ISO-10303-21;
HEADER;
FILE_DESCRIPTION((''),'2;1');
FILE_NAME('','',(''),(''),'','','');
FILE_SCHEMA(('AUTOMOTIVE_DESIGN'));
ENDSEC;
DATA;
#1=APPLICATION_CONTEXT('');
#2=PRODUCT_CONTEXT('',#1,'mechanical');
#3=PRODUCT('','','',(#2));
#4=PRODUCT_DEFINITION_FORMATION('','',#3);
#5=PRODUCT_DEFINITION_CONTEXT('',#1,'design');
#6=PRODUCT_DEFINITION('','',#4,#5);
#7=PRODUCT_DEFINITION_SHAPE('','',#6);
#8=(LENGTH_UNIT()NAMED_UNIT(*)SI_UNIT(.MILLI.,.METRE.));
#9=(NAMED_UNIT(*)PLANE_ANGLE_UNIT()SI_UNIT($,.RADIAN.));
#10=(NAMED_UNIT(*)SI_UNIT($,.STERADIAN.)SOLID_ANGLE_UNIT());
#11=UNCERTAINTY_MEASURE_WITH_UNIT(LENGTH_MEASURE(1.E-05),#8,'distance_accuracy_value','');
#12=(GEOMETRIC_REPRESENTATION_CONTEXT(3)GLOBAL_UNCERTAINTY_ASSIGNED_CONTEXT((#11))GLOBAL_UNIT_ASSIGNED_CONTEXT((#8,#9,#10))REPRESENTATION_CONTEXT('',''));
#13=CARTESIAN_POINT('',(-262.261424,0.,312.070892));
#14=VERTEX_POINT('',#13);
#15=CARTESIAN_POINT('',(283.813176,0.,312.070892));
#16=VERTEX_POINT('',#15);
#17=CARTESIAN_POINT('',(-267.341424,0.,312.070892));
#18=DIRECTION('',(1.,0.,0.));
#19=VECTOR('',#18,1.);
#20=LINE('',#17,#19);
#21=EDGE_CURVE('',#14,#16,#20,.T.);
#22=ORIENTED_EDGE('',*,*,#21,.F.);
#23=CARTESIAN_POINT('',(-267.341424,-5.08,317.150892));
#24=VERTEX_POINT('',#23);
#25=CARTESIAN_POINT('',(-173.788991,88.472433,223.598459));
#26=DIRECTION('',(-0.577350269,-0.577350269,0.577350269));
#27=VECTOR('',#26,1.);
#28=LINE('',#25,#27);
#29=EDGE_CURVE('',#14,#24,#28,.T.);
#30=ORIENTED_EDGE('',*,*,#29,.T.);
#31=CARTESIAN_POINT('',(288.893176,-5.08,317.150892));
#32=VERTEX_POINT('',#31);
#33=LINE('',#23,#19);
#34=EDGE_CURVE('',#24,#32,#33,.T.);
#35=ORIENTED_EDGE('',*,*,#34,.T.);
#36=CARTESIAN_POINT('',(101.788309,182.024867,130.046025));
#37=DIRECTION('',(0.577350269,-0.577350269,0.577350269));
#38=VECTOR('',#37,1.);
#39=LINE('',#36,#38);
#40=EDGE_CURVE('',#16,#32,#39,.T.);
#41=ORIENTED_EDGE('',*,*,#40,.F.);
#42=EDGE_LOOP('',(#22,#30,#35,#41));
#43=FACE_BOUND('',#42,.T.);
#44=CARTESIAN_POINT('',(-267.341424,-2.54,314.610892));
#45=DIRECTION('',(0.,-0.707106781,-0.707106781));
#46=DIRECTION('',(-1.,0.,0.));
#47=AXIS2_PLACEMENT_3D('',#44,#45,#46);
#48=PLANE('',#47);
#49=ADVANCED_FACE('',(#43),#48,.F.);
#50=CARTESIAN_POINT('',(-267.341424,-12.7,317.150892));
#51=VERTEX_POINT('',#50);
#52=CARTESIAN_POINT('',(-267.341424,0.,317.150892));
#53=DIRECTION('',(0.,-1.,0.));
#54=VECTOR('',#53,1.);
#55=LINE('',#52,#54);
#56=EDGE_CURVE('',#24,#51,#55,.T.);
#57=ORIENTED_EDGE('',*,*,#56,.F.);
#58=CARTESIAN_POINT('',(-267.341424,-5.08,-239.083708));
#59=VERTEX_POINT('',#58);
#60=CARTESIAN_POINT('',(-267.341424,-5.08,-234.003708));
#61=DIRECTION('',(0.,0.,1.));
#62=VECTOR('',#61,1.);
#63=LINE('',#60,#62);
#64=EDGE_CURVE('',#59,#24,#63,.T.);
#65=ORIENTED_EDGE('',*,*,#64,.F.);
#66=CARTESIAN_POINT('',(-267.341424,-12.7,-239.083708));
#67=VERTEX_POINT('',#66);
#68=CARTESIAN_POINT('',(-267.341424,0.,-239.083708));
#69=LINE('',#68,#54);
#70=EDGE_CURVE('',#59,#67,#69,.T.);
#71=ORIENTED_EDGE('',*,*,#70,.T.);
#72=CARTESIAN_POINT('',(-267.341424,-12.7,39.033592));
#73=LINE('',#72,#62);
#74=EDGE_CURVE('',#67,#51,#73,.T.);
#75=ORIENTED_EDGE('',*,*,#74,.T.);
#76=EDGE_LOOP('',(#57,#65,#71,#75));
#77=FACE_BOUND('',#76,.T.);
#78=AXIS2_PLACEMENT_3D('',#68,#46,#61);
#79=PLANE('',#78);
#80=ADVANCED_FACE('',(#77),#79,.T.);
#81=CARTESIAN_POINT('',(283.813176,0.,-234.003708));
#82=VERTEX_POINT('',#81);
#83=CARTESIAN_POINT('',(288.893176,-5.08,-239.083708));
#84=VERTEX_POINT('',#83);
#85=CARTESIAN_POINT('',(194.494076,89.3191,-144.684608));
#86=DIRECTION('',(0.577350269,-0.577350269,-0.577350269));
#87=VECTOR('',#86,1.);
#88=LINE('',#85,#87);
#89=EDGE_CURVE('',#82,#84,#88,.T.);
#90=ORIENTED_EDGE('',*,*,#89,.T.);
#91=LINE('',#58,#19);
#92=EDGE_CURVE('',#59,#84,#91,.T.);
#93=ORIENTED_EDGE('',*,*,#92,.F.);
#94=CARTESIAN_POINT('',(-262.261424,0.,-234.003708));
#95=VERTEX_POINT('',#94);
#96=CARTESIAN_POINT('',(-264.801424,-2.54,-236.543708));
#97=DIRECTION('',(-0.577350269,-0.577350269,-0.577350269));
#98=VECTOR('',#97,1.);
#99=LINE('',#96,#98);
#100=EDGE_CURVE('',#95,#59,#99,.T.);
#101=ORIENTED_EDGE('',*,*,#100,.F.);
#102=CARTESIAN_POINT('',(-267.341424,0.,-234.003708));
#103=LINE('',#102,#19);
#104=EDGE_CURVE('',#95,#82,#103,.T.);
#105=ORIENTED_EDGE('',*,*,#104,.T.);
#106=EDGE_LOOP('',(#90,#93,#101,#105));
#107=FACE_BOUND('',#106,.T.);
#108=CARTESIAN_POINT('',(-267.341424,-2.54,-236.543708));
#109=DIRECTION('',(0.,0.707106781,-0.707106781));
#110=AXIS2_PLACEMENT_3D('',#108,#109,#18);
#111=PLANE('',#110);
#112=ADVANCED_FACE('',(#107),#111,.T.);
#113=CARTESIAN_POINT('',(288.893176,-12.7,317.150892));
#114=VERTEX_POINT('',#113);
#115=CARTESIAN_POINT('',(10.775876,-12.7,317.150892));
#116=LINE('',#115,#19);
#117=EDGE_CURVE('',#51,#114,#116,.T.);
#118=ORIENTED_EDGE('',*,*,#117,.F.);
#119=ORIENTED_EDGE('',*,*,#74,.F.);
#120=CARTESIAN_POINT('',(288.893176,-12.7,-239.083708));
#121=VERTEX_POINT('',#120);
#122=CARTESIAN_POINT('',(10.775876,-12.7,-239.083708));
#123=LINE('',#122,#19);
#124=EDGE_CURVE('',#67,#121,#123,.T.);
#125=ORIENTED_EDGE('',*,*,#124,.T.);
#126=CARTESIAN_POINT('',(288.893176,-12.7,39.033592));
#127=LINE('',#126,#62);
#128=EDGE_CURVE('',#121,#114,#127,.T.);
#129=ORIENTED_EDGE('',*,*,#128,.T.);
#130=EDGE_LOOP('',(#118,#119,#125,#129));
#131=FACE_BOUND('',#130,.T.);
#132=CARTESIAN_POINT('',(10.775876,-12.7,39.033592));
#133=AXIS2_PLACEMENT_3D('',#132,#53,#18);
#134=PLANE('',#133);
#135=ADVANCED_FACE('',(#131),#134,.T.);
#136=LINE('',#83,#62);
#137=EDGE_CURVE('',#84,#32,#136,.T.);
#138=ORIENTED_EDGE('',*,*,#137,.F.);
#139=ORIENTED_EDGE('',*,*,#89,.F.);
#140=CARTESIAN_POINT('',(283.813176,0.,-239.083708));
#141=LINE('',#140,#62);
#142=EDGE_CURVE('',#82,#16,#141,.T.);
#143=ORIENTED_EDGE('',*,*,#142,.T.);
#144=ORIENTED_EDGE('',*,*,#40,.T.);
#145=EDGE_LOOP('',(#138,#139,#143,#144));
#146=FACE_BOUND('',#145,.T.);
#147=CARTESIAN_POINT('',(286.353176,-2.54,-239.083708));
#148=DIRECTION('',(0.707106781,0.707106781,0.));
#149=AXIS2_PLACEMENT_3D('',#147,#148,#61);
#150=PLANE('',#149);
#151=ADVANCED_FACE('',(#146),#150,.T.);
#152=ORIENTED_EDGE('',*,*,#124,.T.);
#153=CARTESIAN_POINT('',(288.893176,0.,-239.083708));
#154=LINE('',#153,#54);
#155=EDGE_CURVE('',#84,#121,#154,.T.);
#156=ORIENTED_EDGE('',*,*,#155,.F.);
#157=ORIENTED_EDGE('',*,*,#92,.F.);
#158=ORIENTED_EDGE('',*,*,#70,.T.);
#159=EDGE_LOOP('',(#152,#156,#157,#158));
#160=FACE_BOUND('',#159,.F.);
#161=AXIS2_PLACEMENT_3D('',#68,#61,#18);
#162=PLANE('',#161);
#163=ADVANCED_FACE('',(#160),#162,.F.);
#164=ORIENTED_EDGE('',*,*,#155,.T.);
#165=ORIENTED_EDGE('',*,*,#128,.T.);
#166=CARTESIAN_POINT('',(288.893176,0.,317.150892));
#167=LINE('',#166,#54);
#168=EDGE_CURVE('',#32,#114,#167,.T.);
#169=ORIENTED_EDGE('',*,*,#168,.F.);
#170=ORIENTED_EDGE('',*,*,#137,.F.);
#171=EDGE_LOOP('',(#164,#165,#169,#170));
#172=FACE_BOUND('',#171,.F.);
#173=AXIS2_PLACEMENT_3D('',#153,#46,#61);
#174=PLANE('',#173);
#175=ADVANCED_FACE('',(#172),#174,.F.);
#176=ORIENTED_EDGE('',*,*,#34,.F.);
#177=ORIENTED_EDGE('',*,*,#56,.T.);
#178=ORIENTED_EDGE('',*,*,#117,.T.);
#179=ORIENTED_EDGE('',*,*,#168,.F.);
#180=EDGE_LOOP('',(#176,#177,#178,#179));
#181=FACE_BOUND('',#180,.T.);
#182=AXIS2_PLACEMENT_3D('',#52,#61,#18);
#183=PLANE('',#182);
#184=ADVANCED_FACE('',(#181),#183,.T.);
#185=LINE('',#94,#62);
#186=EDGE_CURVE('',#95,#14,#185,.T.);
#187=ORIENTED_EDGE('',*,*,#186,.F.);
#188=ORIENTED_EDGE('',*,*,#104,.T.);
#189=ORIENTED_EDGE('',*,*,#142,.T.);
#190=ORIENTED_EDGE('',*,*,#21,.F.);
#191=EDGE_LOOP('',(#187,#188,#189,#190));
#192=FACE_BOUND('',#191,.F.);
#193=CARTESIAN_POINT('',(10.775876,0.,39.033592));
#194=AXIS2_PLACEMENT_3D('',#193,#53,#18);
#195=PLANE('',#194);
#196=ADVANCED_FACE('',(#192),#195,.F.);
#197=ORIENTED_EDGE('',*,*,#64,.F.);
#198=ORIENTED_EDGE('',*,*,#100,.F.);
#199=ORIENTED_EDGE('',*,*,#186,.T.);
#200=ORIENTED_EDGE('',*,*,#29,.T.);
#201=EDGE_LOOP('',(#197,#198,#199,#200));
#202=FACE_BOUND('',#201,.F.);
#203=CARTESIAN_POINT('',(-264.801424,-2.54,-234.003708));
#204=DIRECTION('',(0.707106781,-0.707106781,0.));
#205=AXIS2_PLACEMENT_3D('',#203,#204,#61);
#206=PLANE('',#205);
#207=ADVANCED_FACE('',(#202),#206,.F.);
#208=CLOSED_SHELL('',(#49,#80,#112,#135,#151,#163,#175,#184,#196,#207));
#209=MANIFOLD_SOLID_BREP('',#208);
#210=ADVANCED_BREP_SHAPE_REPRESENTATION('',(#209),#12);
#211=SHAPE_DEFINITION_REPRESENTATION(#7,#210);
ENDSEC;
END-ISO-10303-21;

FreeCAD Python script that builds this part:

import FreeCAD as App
import Part
import Sketcher
Q = App.Units.Quantity


def edges_at(feature, points):
    """Names of the edges that pass closest to the given points."""
    edges = feature.Shape.Edges
    near = lambda p: min(range(len(edges)), key=lambda i: edges[i].distToShape(Part.Vertex(*p))[0])
    return sorted({f"Edge{near(p) + 1}" for p in points})


def add_polygon(sketch, points):
    """Adds a closed chain of lines whose ends are joined by coincident constraints."""
    first, n = sketch.GeometryCount, len(points)
    for a, b in zip(points, points[1:] + points[:1]):
        sketch.addGeometry(Part.LineSegment(App.Vector(*a, 0), App.Vector(*b, 0)), False)
    for i in range(n):
        sketch.addConstraint(Sketcher.Constraint("Coincident", first + i, 2, first + (i + 1) % n, 1))

doc = App.newDocument("Part")
body = doc.addObject("PartDesign::Body", "Body")

sketch1 = body.newObject("Sketcher::SketchObject", "Sketch")
sketch1.AttachmentSupport = (doc.getObject("XZ_Plane"), [""])
sketch1.MapMode = "FlatFace"
add_polygon(sketch1, [(-267, 317), (-267, -239), (289, -239), (289, 317)])
sketch1.addConstraint([
    Sketcher.Constraint("Vertical", 0),
    Sketcher.Constraint("Horizontal", 1),
    Sketcher.Constraint("Vertical", 2),
    Sketcher.Constraint("Horizontal", 3),
    Sketcher.Constraint("Equal", 3, 0),
    Sketcher.Constraint("DistanceX", 1, 1, 1, 2, Q("21.899 in")),
    Sketcher.Constraint("DistanceY", 0, 2, -1, 1, Q("239.083708 mm")),
    Sketcher.Constraint("DistanceX", 0, 2, -1, 1, Q("267.341424 mm")),
])
pad1 = body.newObject("PartDesign::Pad", "Pad")
pad1.Profile = sketch1
pad1.Length = Q("0.5 in")
doc.recompute()

chamfer = body.newObject("PartDesign::Chamfer", "Chamfer")
chamfer.Base = (pad1, edges_at(pad1, [(10.776, 0, 317.151)]))
chamfer.Size = Q("0.2 in")
doc.recompute()

chamfer2 = body.newObject("PartDesign::Chamfer", "Chamfer001")
chamfer2.Base = (chamfer, edges_at(chamfer, [(288.893, 0, 36.494)]))
chamfer2.Size = Q("0.2 in")
doc.recompute()

chamfer3 = body.newObject("PartDesign::Chamfer", "Chamfer002")
chamfer3.Base = (chamfer2, edges_at(chamfer2, [(8.236, 0, -239.084)]))
chamfer3.Size = Q("0.2 in")
doc.recompute()

chamfer4 = body.newObject("PartDesign::Chamfer", "Chamfer003")
chamfer4.Base = (chamfer3, edges_at(chamfer3, [(-267.341, 0, 39.034)]))
chamfer4.Size = Q("0.2 in")

doc.recompute()
